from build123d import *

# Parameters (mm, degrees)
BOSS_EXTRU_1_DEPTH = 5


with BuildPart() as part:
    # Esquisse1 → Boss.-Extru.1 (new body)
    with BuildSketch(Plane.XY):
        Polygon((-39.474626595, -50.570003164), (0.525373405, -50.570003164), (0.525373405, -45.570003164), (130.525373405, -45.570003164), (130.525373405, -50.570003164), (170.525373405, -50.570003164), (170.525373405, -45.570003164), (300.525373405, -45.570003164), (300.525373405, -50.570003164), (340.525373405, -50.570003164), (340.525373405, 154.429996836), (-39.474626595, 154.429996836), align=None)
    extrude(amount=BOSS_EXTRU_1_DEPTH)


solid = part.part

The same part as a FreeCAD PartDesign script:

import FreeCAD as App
import Part
import Sketcher
Q = App.Units.Quantity

doc = App.newDocument("Part")
body = doc.addObject("PartDesign::Body", "Body")

# Sketch on XY plane
sketch1 = body.newObject("Sketcher::SketchObject", "Sketch")
sketch1.AttachmentSupport = (doc.getObject("XY_Plane"), [""])
sketch1.MapMode = "FlatFace"
sketch1.addGeometry(Part.LineSegment(App.Vector(-39, -51, 0), App.Vector(1, -51, 0)), False)
sketch1.addGeometry(Part.LineSegment(App.Vector(1, -51, 0), App.Vector(1, -46, 0)), False)
sketch1.addGeometry(Part.LineSegment(App.Vector(1, -46, 0), App.Vector(131, -46, 0)), False)
sketch1.addGeometry(Part.LineSegment(App.Vector(131, -46, 0), App.Vector(131, -51, 0)), False)
sketch1.addGeometry(Part.LineSegment(App.Vector(131, -51, 0), App.Vector(171, -51, 0)), False)
sketch1.addGeometry(Part.LineSegment(App.Vector(171, -51, 0), App.Vector(171, -46, 0)), False)
sketch1.addGeometry(Part.LineSegment(App.Vector(171, -46, 0), App.Vector(301, -46, 0)), False)
sketch1.addGeometry(Part.LineSegment(App.Vector(301, -46, 0), App.Vector(301, -51, 0)), False)
sketch1.addGeometry(Part.LineSegment(App.Vector(301, -51, 0), App.Vector(341, -51, 0)), False)
sketch1.addGeometry(Part.LineSegment(App.Vector(341, -51, 0), App.Vector(341, 154, 0)), False)
sketch1.addGeometry(Part.LineSegment(App.Vector(341, 154, 0), App.Vector(-39, 154, 0)), False)
sketch1.addGeometry(Part.LineSegment(App.Vector(-39, 154, 0), App.Vector(-39, -51, 0)), False)
sketch1.addConstraint(Sketcher.Constraint("Coincident", 0, 2, 1, 1))
sketch1.addConstraint(Sketcher.Constraint("Coincident", 1, 2, 2, 1))
sketch1.addConstraint(Sketcher.Constraint("Coincident", 2, 2, 3, 1))
sketch1.addConstraint(Sketcher.Constraint("Coincident", 3, 2, 4, 1))
sketch1.addConstraint(Sketcher.Constraint("Coincident", 4, 2, 5, 1))
sketch1.addConstraint(Sketcher.Constraint("Coincident", 5, 2, 6, 1))
sketch1.addConstraint(Sketcher.Constraint("Coincident", 6, 2, 7, 1))
sketch1.addConstraint(Sketcher.Constraint("Coincident", 7, 2, 8, 1))
sketch1.addConstraint(Sketcher.Constraint("Coincident", 8, 2, 9, 1))
sketch1.addConstraint(Sketcher.Constraint("Coincident", 9, 2, 10, 1))
sketch1.addConstraint(Sketcher.Constraint("Coincident", 10, 2, 11, 1))
sketch1.addConstraint(Sketcher.Constraint("Coincident", 11, 2, 0, 1))
sketch1.addConstraint(Sketcher.Constraint("Horizontal", 0))
sketch1.addConstraint(Sketcher.Constraint("Vertical", 1))
sketch1.addConstraint(Sketcher.Constraint("Horizontal", 2))
sketch1.addConstraint(Sketcher.Constraint("Vertical", 3))
sketch1.addConstraint(Sketcher.Constraint("Horizontal", 4))
sketch1.addConstraint(Sketcher.Constraint("Vertical", 5))
sketch1.addConstraint(Sketcher.Constraint("Horizontal", 6))
sketch1.addConstraint(Sketcher.Constraint("Vertical", 7))
sketch1.addConstraint(Sketcher.Constraint("Horizontal", 8))
sketch1.addConstraint(Sketcher.Constraint("Vertical", 9))
sketch1.addConstraint(Sketcher.Constraint("Horizontal", 10))
sketch1.addConstraint(Sketcher.Constraint("Vertical", 11))
sketch1.addConstraint(Sketcher.Constraint("Horizontal", 0, 2, 3, 2))
sketch1.addConstraint(Sketcher.Constraint("Horizontal", 2, 2, 5, 2))
sketch1.addConstraint(Sketcher.Constraint("Horizontal", 4, 2, 7, 2))
sketch1.addConstraint(Sketcher.Constraint("Equal", 0, 4))
sketch1.addConstraint(Sketcher.Constraint("Equal", 2, 6))
sketch1.addConstraint(Sketcher.Constraint("Equal", 4, 8))
sketch1.addConstraint(Sketcher.Constraint("DistanceX", 0, 1, 0, 2, Q("40 mm")))
sketch1.addConstraint(Sketcher.Constraint("DistanceX", 2, 1, 2, 2, Q("130 mm")))
sketch1.addConstraint(Sketcher.Constraint("DistanceY", 1, 1, 1, 2, Q("5 mm")))
sketch1.addConstraint(Sketcher.Constraint("DistanceY", 9, 1, 9, 2, Q("205 mm")))
sketch1.addConstraint(Sketcher.Constraint("DistanceX", -1, 1, 0, 2, Q("0.525373 mm")))
sketch1.addConstraint(Sketcher.Constraint("DistanceY", 0, 2, -1, 1, Q("50.570003 mm")))
pad1 = body.newObject("PartDesign::Pad", "Pad")
pad1.Profile = sketch1
pad1.Length = 5

doc.recompute()
